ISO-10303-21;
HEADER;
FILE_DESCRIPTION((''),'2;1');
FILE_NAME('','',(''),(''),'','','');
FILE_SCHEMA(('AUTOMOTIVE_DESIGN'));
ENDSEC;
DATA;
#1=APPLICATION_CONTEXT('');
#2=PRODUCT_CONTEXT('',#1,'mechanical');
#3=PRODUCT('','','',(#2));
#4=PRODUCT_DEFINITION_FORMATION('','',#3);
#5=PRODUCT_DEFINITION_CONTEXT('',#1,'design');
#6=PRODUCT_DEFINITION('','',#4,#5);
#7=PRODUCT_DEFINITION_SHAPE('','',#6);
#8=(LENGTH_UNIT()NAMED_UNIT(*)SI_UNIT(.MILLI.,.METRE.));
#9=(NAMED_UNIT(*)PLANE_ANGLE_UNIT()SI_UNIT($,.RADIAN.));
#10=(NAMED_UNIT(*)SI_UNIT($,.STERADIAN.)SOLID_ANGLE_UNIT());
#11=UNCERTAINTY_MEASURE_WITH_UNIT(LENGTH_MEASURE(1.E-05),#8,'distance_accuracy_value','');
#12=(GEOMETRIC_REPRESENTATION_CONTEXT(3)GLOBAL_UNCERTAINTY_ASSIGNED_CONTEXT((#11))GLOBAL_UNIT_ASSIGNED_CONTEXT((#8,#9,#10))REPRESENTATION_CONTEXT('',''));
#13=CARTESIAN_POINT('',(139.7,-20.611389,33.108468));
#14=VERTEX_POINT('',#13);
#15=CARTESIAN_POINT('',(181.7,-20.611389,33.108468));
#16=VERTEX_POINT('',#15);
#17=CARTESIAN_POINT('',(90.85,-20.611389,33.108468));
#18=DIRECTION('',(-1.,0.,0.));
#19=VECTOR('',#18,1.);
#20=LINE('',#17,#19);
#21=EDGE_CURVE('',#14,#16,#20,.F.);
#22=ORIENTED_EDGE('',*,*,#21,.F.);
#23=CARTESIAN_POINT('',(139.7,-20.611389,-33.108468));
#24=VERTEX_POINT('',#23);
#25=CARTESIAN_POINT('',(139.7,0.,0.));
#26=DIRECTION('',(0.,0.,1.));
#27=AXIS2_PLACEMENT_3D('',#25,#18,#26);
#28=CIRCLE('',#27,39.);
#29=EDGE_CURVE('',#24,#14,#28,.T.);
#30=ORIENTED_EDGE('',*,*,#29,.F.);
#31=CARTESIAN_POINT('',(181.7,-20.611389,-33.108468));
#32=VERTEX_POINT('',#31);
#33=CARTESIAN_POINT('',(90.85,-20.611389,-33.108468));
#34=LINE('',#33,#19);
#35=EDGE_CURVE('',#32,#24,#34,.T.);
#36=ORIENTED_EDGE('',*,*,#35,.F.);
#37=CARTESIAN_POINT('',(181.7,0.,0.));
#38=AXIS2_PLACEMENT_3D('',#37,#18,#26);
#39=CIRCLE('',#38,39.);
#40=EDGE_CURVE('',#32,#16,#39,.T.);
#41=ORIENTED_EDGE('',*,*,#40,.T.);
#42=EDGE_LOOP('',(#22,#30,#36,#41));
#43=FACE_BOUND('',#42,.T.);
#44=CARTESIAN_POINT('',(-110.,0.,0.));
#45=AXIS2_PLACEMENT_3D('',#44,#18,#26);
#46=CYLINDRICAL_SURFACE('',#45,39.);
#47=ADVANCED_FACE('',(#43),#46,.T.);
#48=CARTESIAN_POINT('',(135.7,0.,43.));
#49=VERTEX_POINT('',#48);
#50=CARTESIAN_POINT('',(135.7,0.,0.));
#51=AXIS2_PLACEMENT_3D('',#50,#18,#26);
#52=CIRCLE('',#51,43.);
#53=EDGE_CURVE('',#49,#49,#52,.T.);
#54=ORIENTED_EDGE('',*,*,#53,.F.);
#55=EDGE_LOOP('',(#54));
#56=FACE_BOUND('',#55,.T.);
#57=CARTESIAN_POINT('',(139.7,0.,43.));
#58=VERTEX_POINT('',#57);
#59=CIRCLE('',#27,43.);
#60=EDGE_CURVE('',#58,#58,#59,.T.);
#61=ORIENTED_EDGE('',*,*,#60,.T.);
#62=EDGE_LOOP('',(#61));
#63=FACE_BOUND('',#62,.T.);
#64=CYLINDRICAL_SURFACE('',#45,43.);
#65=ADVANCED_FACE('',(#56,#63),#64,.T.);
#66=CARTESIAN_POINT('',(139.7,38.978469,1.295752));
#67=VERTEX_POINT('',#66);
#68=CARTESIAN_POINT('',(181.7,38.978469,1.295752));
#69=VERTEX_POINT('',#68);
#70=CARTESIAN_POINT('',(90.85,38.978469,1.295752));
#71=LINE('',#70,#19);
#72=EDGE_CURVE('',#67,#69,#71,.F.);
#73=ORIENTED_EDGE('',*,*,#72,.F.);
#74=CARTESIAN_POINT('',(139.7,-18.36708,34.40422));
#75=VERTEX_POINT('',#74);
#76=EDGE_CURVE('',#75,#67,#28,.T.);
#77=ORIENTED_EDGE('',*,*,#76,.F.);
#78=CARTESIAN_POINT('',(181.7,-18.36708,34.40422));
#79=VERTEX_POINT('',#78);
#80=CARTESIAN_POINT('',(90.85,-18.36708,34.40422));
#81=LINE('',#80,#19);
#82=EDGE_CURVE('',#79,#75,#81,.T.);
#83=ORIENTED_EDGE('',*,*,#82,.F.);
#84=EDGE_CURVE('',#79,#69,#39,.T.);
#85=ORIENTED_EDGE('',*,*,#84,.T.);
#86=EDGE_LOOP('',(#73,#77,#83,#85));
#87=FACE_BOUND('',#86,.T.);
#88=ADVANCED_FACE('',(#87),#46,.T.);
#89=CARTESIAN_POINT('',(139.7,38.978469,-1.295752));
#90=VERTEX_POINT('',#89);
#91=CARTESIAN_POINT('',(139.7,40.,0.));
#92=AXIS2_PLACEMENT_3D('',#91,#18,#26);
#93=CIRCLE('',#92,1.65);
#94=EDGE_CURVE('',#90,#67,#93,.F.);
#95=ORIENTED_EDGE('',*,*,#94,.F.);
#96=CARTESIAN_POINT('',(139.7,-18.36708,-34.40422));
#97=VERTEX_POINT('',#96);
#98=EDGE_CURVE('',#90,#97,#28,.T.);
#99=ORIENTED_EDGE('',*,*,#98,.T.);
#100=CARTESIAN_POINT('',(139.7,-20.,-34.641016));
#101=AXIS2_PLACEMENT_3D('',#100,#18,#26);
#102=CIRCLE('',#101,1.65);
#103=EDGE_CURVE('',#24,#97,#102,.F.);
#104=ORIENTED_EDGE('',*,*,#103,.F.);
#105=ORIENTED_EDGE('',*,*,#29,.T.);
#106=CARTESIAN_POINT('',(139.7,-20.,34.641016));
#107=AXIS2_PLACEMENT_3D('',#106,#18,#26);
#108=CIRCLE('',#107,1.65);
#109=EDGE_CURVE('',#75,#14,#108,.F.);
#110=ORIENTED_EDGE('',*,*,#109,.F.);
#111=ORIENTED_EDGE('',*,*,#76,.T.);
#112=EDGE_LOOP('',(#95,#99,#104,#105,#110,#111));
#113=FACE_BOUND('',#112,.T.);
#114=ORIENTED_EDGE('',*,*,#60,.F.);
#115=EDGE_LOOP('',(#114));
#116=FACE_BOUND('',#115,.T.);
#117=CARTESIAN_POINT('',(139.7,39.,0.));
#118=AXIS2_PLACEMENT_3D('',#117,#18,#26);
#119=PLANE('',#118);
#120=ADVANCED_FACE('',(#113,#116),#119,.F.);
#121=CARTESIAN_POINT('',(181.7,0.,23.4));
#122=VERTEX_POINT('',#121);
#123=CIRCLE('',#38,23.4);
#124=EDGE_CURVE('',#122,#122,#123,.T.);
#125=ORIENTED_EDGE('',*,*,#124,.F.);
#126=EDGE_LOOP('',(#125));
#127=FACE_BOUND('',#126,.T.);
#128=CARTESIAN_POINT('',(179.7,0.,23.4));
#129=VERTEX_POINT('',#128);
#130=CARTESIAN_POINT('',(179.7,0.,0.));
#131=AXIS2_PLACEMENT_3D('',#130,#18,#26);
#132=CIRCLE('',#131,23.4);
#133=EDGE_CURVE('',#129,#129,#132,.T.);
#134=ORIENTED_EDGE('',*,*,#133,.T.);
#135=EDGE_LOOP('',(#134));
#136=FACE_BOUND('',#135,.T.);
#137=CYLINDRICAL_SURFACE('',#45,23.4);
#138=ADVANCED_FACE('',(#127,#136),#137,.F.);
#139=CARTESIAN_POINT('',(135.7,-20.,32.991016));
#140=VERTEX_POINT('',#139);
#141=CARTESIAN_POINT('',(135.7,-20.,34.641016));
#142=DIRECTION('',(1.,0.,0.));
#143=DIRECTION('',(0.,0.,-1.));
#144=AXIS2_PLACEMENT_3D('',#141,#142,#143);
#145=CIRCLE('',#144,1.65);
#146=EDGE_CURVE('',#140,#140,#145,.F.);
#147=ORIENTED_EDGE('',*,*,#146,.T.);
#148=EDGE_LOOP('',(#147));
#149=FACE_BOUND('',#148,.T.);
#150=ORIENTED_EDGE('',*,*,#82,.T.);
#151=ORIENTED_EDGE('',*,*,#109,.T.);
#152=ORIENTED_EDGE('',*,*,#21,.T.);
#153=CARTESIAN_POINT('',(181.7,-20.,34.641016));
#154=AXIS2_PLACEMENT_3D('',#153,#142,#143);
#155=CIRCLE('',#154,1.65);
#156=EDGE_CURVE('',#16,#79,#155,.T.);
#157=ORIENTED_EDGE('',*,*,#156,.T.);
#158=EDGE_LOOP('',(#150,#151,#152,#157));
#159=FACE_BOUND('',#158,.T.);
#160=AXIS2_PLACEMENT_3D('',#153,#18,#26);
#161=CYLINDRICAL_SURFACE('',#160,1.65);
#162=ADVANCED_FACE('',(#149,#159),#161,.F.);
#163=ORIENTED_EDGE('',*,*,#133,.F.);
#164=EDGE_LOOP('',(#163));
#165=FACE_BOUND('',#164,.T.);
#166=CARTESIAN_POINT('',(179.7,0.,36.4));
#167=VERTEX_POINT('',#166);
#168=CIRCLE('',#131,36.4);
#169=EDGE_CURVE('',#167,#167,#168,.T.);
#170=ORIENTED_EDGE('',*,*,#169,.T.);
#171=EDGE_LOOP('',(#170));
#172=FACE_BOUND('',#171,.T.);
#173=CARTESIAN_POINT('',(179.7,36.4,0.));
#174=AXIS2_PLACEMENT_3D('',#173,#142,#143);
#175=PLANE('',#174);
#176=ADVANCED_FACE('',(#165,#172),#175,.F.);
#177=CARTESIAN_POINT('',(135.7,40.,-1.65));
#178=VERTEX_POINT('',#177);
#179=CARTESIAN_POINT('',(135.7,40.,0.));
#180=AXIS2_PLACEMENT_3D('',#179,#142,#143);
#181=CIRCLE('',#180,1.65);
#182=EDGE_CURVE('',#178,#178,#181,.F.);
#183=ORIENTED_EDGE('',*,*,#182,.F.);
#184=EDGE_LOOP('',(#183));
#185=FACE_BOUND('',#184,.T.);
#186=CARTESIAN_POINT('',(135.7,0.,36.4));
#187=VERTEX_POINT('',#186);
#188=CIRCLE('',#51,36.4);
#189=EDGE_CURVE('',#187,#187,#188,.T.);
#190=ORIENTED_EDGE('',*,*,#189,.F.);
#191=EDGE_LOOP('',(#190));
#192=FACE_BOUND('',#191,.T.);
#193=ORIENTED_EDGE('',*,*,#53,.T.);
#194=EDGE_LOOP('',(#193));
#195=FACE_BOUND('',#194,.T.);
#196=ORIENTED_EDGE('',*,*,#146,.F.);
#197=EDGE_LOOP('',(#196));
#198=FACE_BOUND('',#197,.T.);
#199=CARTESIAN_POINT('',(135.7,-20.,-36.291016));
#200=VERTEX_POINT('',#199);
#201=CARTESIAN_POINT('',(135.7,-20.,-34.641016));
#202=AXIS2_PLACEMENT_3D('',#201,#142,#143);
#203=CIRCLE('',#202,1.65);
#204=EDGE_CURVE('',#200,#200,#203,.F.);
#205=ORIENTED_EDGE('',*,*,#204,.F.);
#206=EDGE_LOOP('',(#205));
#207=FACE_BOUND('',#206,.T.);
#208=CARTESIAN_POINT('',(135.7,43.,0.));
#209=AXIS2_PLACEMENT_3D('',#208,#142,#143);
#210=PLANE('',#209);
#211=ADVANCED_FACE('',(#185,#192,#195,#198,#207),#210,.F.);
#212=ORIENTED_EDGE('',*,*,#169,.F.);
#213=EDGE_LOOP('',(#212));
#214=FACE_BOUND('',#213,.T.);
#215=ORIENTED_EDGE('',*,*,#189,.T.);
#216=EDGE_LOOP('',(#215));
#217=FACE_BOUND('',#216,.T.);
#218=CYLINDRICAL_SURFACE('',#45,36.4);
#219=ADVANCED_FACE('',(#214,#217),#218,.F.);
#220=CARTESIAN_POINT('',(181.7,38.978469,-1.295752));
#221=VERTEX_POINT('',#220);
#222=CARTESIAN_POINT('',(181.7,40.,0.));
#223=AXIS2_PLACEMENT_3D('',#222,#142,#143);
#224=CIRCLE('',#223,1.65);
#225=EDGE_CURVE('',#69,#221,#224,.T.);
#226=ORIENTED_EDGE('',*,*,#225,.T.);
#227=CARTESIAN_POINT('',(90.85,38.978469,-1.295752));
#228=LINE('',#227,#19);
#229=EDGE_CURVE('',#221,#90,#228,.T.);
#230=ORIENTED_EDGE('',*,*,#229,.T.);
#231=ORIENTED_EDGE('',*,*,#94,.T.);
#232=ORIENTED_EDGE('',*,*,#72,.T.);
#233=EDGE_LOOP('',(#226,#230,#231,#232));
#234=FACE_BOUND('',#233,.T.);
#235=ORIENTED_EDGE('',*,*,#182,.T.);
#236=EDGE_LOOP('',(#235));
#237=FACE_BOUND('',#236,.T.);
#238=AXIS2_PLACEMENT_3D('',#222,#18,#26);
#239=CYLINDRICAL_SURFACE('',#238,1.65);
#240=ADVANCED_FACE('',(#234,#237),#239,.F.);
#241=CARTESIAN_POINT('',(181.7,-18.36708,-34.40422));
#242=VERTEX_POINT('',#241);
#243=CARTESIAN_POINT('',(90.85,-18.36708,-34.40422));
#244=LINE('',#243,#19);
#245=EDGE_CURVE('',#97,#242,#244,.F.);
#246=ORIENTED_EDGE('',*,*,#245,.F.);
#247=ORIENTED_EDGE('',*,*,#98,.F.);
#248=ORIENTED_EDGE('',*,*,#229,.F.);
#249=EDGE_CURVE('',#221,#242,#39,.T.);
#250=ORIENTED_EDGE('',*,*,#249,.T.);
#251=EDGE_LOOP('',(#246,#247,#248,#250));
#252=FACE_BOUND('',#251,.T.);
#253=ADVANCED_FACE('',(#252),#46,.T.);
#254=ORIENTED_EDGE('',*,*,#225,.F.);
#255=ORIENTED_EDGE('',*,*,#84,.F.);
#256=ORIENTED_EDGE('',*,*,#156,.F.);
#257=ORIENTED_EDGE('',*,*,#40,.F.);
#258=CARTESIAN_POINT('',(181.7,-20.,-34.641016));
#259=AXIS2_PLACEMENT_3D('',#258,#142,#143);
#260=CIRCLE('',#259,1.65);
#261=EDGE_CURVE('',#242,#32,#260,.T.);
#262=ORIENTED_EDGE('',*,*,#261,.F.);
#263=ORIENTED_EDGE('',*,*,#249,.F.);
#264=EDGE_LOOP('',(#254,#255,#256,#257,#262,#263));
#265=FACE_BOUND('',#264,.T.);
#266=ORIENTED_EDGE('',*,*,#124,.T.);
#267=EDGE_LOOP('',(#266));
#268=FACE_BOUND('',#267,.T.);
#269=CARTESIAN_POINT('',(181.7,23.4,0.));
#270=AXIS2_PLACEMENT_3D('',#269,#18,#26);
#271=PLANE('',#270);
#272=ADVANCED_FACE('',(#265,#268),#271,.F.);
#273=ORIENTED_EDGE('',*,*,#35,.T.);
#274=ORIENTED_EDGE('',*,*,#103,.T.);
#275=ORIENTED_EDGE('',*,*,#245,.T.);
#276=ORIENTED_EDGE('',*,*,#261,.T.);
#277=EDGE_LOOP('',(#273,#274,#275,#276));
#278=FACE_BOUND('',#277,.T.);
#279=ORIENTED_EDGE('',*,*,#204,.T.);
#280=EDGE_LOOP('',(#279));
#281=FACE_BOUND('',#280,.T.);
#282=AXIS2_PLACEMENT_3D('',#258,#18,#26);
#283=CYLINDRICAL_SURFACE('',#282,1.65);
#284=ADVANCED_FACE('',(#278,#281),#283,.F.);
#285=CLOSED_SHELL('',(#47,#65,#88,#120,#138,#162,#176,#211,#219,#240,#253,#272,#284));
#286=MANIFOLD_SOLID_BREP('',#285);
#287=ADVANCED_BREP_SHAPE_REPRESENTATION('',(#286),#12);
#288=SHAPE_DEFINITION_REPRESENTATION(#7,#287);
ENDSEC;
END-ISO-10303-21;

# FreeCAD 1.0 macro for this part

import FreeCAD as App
import Part
import Sketcher
from FreeCAD import Vector
Q = App.Units.Quantity


def add_polygon(sketch, points):
    """Adds a closed chain of lines whose ends are joined by coincident constraints."""
    first, n = sketch.GeometryCount, len(points)
    for a, b in zip(points, points[1:] + points[:1]):
        sketch.addGeometry(Part.LineSegment(App.Vector(*a, 0), App.Vector(*b, 0)), False)
    for i in range(n):
        sketch.addConstraint(Sketcher.Constraint("Coincident", first + i, 2, first + (i + 1) % n, 1))

doc = App.newDocument("Part")
body = doc.addObject("PartDesign::Body", "Body")

# Sketch on XY plane
sketch1 = body.newObject("Sketcher::SketchObject", "Sketch")
sketch1.AttachmentSupport = (doc.getObject("XY_Plane"), [""])
sketch1.MapMode = "FlatFace"
add_polygon(sketch1, [(135.7, 36.4), (179.7, 36.4), (179.7, 23.4), (181.7, 23.4), (181.7, 39), (139.7, 39), (139.7, 43), (135.7, 43)])  # lines 0-7
sketch1.addConstraint([
    Sketcher.Constraint("Horizontal", 0),
    Sketcher.Constraint("Vertical", 1),
    Sketcher.Constraint("Horizontal", 2),
    Sketcher.Constraint("Vertical", 3),
    Sketcher.Constraint("Horizontal", 4),
    Sketcher.Constraint("Vertical", 5),
    Sketcher.Constraint("Horizontal", 6),
    Sketcher.Constraint("Vertical", 7),
    Sketcher.Constraint("Equal", 6, 5),
    Sketcher.Constraint("DistanceX", 0, 1, 0, 2, Q("44 mm")),
    Sketcher.Constraint("DistanceX", 2, 1, 2, 2, Q("2 mm")),
    Sketcher.Constraint("DistanceX", 4, 2, 4, 1, Q("42 mm")),
    Sketcher.Constraint("DistanceY", 1, 2, 1, 1, Q("13 mm")),
    Sketcher.Constraint("DistanceY", 3, 1, 3, 2, Q("15.6 mm")),
    Sketcher.Constraint("DistanceY", -1, 1, 3, 2, Q("39 mm")),
    Sketcher.Constraint("DistanceX", -1, 1, 0, 2, Q("179.7 mm")),
])
revolution = body.newObject("PartDesign::Revolution", "Revolution")
revolution.Profile = sketch1
revolution.ReferenceAxis = (sketch1, ["H_Axis"])
revolution.Angle = 360

# Sketch on YZ plane
sketch2 = body.newObject("Sketcher::SketchObject", "Sketch001")
sketch2.AttachmentSupport = (doc.getObject("YZ_Plane"), [""])
sketch2.MapMode = "FlatFace"
sketch2.addGeometry([
    Part.Circle(Vector(40, 0, 0), Vector(0, 0, 1), 1.6),
    Part.Circle(Vector(-20, 34.6, 0), Vector(0, 0, 1), 1.6),
    Part.Circle(Vector(-20, -34.6, 0), Vector(0, 0, 1), 1.6),
], False)
sketch2.addConstraint([
    Sketcher.Constraint("Equal", 0, 1),
    Sketcher.Constraint("Equal", 1, 2),
    Sketcher.Constraint("Symmetric", 1, 3, 2, 3, -1),
    Sketcher.Constraint("PointOnObject", 0, 3, -1),
    Sketcher.Constraint("Diameter", 0, Q("3.3 mm")),
    Sketcher.Constraint("DistanceX", -1, 1, 0, 3, Q("40 mm")),
    Sketcher.Constraint("DistanceX", 1, 3, -1, 1, Q("20 mm")),
    Sketcher.Constraint("DistanceY", -1, 1, 1, 3, Q("34.641016 mm")),
])
pocket1 = body.newObject("PartDesign::Pocket", "Pocket")
pocket1.Profile = sketch2
pocket1.Type = "ThroughAll"
pocket1.Midplane = True

doc.recompute()
